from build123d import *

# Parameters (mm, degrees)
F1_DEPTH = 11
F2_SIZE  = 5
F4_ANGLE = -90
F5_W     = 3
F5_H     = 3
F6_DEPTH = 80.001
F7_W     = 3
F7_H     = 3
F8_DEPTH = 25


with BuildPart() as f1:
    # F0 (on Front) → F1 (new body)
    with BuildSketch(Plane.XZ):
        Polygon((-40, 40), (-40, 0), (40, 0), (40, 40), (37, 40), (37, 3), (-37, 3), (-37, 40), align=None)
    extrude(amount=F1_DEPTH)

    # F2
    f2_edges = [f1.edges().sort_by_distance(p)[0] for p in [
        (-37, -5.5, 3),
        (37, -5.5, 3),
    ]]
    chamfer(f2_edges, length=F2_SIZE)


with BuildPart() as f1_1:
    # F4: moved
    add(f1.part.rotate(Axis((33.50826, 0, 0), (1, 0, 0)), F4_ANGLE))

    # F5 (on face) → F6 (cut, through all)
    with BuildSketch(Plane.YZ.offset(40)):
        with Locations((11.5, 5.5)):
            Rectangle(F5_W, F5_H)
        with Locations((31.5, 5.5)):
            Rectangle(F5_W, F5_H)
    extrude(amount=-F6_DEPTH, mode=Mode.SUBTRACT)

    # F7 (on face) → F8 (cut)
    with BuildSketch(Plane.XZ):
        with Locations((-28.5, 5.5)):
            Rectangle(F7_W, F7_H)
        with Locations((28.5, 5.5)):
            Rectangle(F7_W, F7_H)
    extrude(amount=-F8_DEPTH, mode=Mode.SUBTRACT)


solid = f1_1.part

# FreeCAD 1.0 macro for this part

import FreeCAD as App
import Part
import Sketcher


def edges_at(feature, points):
    """Names of the edges that pass closest to the given points."""
    edges = feature.Shape.Edges
    near = lambda p: min(range(len(edges)), key=lambda i: edges[i].distToShape(Part.Vertex(*p))[0])
    return sorted({f"Edge{near(p) + 1}" for p in points})


def add_polygon(sketch, points):
    """Adds a closed chain of lines whose ends are joined by coincident constraints."""
    first, n = sketch.GeometryCount, len(points)
    for a, b in zip(points, points[1:] + points[:1]):
        sketch.addGeometry(Part.LineSegment(App.Vector(*a, 0), App.Vector(*b, 0)), False)
    for i in range(n):
        sketch.addConstraint(Sketcher.Constraint("Coincident", first + i, 2, first + (i + 1) % n, 1))

doc = App.newDocument("Part")
body = doc.addObject("PartDesign::Body", "Body")

sketch1 = doc.addObject("Sketcher::SketchObject", "Sketch")
body.addObject(sketch1)
sketch1.AttachmentSupport = (doc.XZ_Plane, [""])
sketch1.MapMode = "FlatFace"
add_polygon(sketch1, [(-40, 40), (-40, 0), (40, 0), (40, 40), (37, 40), (37, 3), (-37, 3), (-37, 40)])
sketch1.addConstraint(Sketcher.Constraint("Vertical", 0))
sketch1.addConstraint(Sketcher.Constraint("Horizontal", 1))
sketch1.addConstraint(Sketcher.Constraint("Vertical", 2))
sketch1.addConstraint(Sketcher.Constraint("Horizontal", 3))
sketch1.addConstraint(Sketcher.Constraint("Vertical", 4))
sketch1.addConstraint(Sketcher.Constraint("Horizontal", 5))
sketch1.addConstraint(Sketcher.Constraint("Vertical", 6))
sketch1.addConstraint(Sketcher.Constraint("Horizontal", 7))
sketch1.addConstraint(Sketcher.Constraint("Symmetric", 0, 2, 1, 2, -1, 1))
sketch1.addConstraint(Sketcher.Constraint("Symmetric", 3, 2, 6, 2, -2))
sketch1.addConstraint(Sketcher.Constraint("DistanceX", 1, 1, 1, 2, 80.0))
sketch1.addConstraint(Sketcher.Constraint("DistanceX", 3, 2, 3, 1, 3.0))
sketch1.addConstraint(Sketcher.Constraint("DistanceY", 0, 2, 0, 1, 40.0))
sketch1.addConstraint(Sketcher.Constraint("DistanceY", 4, 2, 4, 1, 37.0))
pad1 = doc.addObject("PartDesign::Pad", "Pad")
body.addObject(pad1)
pad1.Profile = sketch1
pad1.Length = 11
doc.recompute()

chamfer = doc.addObject("PartDesign::Chamfer", "Chamfer")
body.addObject(chamfer)
chamfer.Base = (pad1, edges_at(pad1, [(-37, -5.5, 3), (37, -5.5, 3)]))
chamfer.Size = 5
body2 = doc.addObject("PartDesign::Body", "Body001")
doc.recompute()

body.Placement = App.Placement(App.Vector(0, 0, 0), App.Rotation(App.Vector(1, 0, 0), 270))
boolean = doc.addObject("PartDesign::Boolean", "Boolean")
body2.addObject(boolean)
boolean.Type = "Fuse"
boolean.addObjects([body])

sketch2 = doc.addObject("Sketcher::SketchObject", "Sketch001")
body2.addObject(sketch2)
sketch2.AttachmentSupport = (doc.getObject("YZ_Plane001"), [""])
sketch2.MapMode = "FlatFace"
sketch2.AttachmentOffset = App.Placement(App.Vector(0, 0, 40), App.Rotation())
add_polygon(sketch2, [(10, 7), (10, 4), (13, 4), (13, 7)])
add_polygon(sketch2, [(30, 7), (30, 4), (33, 4), (33, 7)])
sketch2.addConstraint(Sketcher.Constraint("Vertical", 0))
sketch2.addConstraint(Sketcher.Constraint("Horizontal", 1))
sketch2.addConstraint(Sketcher.Constraint("Vertical", 2))
sketch2.addConstraint(Sketcher.Constraint("Horizontal", 3))
sketch2.addConstraint(Sketcher.Constraint("Vertical", 4))
sketch2.addConstraint(Sketcher.Constraint("Horizontal", 5))
sketch2.addConstraint(Sketcher.Constraint("Vertical", 6))
sketch2.addConstraint(Sketcher.Constraint("Horizontal", 7))
sketch2.addConstraint(Sketcher.Constraint("Horizontal", 1, 2, 4, 2))
sketch2.addConstraint(Sketcher.Constraint("Horizontal", 3, 2, 6, 2))
sketch2.addConstraint(Sketcher.Constraint("Equal", 3, 5))
sketch2.addConstraint(Sketcher.Constraint("Equal", 7, 0))
sketch2.addConstraint(Sketcher.Constraint("DistanceX", 1, 1, 1, 2, 3.0))
sketch2.addConstraint(Sketcher.Constraint("DistanceX", -1, 1, 0, 2, 10.0))
sketch2.addConstraint(Sketcher.Constraint("DistanceY", -1, 1, 0, 2, 4.0))
sketch2.addConstraint(Sketcher.Constraint("DistanceX", -1, 1, 4, 2, 30.0))
pocket1 = doc.addObject("PartDesign::Pocket", "Pocket")
body2.addObject(pocket1)
pocket1.Profile = sketch2
pocket1.Type = "ThroughAll"

sketch3 = doc.addObject("Sketcher::SketchObject", "Sketch002")
body2.addObject(sketch3)
sketch3.AttachmentSupport = (doc.getObject("XZ_Plane001"), [""])
sketch3.MapMode = "FlatFace"
add_polygon(sketch3, [(-30, 7), (-30, 4), (-27, 4), (-27, 7)])
add_polygon(sketch3, [(27, 7), (27, 4), (30, 4), (30, 7)])
sketch3.addConstraint(Sketcher.Constraint("Vertical", 0))
sketch3.addConstraint(Sketcher.Constraint("Horizontal", 1))
sketch3.addConstraint(Sketcher.Constraint("Vertical", 2))
sketch3.addConstraint(Sketcher.Constraint("Horizontal", 3))
sketch3.addConstraint(Sketcher.Constraint("Vertical", 4))
sketch3.addConstraint(Sketcher.Constraint("Horizontal", 5))
sketch3.addConstraint(Sketcher.Constraint("Vertical", 6))
sketch3.addConstraint(Sketcher.Constraint("Horizontal", 7))
sketch3.addConstraint(Sketcher.Constraint("Symmetric", 1, 2, 4, 2, -2))
sketch3.addConstraint(Sketcher.Constraint("Symmetric", 3, 2, 6, 2, -2))
sketch3.addConstraint(Sketcher.Constraint("Equal", 7, 0))
sketch3.addConstraint(Sketcher.Constraint("DistanceX", 1, 1, 1, 2, 3.0))
sketch3.addConstraint(Sketcher.Constraint("DistanceX", 0, 2, -1, 1, 30.0))
sketch3.addConstraint(Sketcher.Constraint("DistanceY", -1, 1, 0, 2, 4.0))
pocket2 = doc.addObject("PartDesign::Pocket", "Pocket001")
body2.addObject(pocket2)
pocket2.Profile = sketch3
pocket2.Length = 25

doc.recompute()
